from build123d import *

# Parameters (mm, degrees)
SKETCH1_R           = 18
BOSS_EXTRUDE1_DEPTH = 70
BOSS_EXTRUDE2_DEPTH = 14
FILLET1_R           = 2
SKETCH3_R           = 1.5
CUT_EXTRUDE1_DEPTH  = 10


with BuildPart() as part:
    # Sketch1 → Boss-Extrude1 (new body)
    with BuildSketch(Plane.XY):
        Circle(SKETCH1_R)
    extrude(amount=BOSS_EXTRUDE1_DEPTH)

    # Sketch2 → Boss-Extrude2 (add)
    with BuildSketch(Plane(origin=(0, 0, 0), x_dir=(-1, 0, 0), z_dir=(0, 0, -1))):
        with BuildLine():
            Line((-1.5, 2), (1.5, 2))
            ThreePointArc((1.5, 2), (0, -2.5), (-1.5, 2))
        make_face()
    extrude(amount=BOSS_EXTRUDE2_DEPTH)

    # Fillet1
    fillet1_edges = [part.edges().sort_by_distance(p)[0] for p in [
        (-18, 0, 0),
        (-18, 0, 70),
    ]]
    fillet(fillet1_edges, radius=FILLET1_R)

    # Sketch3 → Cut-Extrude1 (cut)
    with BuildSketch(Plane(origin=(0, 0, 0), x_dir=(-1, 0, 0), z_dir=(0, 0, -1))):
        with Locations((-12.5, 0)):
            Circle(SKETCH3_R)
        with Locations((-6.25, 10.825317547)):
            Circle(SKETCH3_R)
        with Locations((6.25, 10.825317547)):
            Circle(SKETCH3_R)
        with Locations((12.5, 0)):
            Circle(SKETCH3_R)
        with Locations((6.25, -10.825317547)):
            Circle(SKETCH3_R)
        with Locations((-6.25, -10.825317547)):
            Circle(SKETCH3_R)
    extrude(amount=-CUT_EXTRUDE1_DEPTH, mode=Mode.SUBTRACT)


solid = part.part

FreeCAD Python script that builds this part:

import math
import FreeCAD as App
import Part
import Sketcher

V = App.Vector
Q = App.Units.Quantity


def edges_at(feature, points):
    """Names of the edges that pass closest to the given points."""
    edges = feature.Shape.Edges
    near = lambda p: min(range(len(edges)), key=lambda i: edges[i].distToShape(Part.Vertex(*p))[0])
    return sorted({f"Edge{near(p) + 1}" for p in points})

doc = App.newDocument("Part")
body = doc.addObject("PartDesign::Body", "Body")

# Sketch on XY plane
sketch1 = body.newObject("Sketcher::SketchObject", "Sketch")
sketch1.AttachmentSupport = (doc.getObject("XY_Plane"), [""])
sketch1.MapMode = "FlatFace"
sketch1.addGeometry(Part.Circle(V(0, 0, 0), V(0, 0, 1), 18), False)
sketch1.addConstraint(Sketcher.Constraint("Coincident", 0, 3, -1, 1))
sketch1.addConstraint(Sketcher.Constraint("Diameter", 0, Q("36 mm")))
pad1 = body.newObject("PartDesign::Pad", "Pad")
pad1.Profile = sketch1
pad1.Length = 70

# Sketch on XY plane
sketch2 = body.newObject("Sketcher::SketchObject", "Sketch001")
sketch2.AttachmentSupport = (doc.getObject("XY_Plane"), [""])
sketch2.MapMode = "FlatFace"
sketch2.addGeometry(Part.LineSegment(V(-1.5, 2, 0), V(1.5, 2, 0)), False)
sketch2.addGeometry(Part.ArcOfCircle(Part.Circle(V(0, 0, 0), V(0, 0, 1), 2.5), math.radians(126.869898), math.radians(413.130102)), False)
sketch2.addConstraint(Sketcher.Constraint("Coincident", 0, 1, 1, 1))
sketch2.addConstraint(Sketcher.Constraint("Coincident", 1, 2, 0, 2))
sketch2.addConstraint(Sketcher.Constraint("Horizontal", 0))
sketch2.addConstraint(Sketcher.Constraint("Coincident", 1, 3, -1, 1))
sketch2.addConstraint(Sketcher.Constraint("Radius", 1, Q("2.5 mm")))
sketch2.addConstraint(Sketcher.Constraint("DistanceX", 0, 1, 0, 2, Q("3 mm")))
pad2 = body.newObject("PartDesign::Pad", "Pad001")
pad2.Profile = sketch2
pad2.Length = 14
pad2.Reversed = True
doc.recompute()

fillet = body.newObject("PartDesign::Fillet", "Fillet")
fillet.Base = (pad2, edges_at(pad2, [(-18, 0, 0), (-18, 0, 70)]))
fillet.Radius = 2

# Sketch on XY plane
sketch3 = body.newObject("Sketcher::SketchObject", "Sketch002")
sketch3.AttachmentSupport = (doc.getObject("XY_Plane"), [""])
sketch3.MapMode = "FlatFace"
sketch3.addGeometry(Part.Circle(V(12.5, 0, 0), V(0, 0, 1), 1.5), False)
sketch3.addGeometry(Part.Circle(V(6.25, 10.825318, 0), V(0, 0, 1), 1.5), False)
sketch3.addGeometry(Part.Circle(V(-6.25, 10.825318, 0), V(0, 0, 1), 1.5), False)
sketch3.addGeometry(Part.Circle(V(-12.5, 0, 0), V(0, 0, 1), 1.5), False)
sketch3.addGeometry(Part.Circle(V(-6.25, -10.825318, 0), V(0, 0, 1), 1.5), False)
sketch3.addGeometry(Part.Circle(V(6.25, -10.825318, 0), V(0, 0, 1), 1.5), False)
sketch3.addConstraint(Sketcher.Constraint("Equal", 0, 1))
sketch3.addConstraint(Sketcher.Constraint("Equal", 1, 2))
sketch3.addConstraint(Sketcher.Constraint("Equal", 2, 3))
sketch3.addConstraint(Sketcher.Constraint("Equal", 3, 4))
sketch3.addConstraint(Sketcher.Constraint("Equal", 4, 5))
sketch3.addConstraint(Sketcher.Constraint("Symmetric", 0, 3, 3, 3, -1, 1))
sketch3.addConstraint(Sketcher.Constraint("Symmetric", 1, 3, 4, 3, -1, 1))
sketch3.addConstraint(Sketcher.Constraint("Symmetric", 2, 3, 5, 3, -1, 1))
sketch3.addConstraint(Sketcher.Constraint("Symmetric", 1, 3, 2, 3, -2))
sketch3.addConstraint(Sketcher.Constraint("PointOnObject", 0, 3, -1))
sketch3.addConstraint(Sketcher.Constraint("Diameter", 0, Q("3 mm")))
sketch3.addConstraint(Sketcher.Constraint("DistanceX", 3, 3, 0, 3, Q("25 mm")))
sketch3.addConstraint(Sketcher.Constraint("DistanceX", 2, 3, 1, 3, Q("12.5 mm")))
sketch3.addConstraint(Sketcher.Constraint("DistanceY", -1, 1, 1, 3, Q("10.825318 mm")))
pocket1 = body.newObject("PartDesign::Pocket", "Pocket")
pocket1.Profile = sketch3
pocket1.Length = 10
pocket1.Reversed = True

doc.recompute()
